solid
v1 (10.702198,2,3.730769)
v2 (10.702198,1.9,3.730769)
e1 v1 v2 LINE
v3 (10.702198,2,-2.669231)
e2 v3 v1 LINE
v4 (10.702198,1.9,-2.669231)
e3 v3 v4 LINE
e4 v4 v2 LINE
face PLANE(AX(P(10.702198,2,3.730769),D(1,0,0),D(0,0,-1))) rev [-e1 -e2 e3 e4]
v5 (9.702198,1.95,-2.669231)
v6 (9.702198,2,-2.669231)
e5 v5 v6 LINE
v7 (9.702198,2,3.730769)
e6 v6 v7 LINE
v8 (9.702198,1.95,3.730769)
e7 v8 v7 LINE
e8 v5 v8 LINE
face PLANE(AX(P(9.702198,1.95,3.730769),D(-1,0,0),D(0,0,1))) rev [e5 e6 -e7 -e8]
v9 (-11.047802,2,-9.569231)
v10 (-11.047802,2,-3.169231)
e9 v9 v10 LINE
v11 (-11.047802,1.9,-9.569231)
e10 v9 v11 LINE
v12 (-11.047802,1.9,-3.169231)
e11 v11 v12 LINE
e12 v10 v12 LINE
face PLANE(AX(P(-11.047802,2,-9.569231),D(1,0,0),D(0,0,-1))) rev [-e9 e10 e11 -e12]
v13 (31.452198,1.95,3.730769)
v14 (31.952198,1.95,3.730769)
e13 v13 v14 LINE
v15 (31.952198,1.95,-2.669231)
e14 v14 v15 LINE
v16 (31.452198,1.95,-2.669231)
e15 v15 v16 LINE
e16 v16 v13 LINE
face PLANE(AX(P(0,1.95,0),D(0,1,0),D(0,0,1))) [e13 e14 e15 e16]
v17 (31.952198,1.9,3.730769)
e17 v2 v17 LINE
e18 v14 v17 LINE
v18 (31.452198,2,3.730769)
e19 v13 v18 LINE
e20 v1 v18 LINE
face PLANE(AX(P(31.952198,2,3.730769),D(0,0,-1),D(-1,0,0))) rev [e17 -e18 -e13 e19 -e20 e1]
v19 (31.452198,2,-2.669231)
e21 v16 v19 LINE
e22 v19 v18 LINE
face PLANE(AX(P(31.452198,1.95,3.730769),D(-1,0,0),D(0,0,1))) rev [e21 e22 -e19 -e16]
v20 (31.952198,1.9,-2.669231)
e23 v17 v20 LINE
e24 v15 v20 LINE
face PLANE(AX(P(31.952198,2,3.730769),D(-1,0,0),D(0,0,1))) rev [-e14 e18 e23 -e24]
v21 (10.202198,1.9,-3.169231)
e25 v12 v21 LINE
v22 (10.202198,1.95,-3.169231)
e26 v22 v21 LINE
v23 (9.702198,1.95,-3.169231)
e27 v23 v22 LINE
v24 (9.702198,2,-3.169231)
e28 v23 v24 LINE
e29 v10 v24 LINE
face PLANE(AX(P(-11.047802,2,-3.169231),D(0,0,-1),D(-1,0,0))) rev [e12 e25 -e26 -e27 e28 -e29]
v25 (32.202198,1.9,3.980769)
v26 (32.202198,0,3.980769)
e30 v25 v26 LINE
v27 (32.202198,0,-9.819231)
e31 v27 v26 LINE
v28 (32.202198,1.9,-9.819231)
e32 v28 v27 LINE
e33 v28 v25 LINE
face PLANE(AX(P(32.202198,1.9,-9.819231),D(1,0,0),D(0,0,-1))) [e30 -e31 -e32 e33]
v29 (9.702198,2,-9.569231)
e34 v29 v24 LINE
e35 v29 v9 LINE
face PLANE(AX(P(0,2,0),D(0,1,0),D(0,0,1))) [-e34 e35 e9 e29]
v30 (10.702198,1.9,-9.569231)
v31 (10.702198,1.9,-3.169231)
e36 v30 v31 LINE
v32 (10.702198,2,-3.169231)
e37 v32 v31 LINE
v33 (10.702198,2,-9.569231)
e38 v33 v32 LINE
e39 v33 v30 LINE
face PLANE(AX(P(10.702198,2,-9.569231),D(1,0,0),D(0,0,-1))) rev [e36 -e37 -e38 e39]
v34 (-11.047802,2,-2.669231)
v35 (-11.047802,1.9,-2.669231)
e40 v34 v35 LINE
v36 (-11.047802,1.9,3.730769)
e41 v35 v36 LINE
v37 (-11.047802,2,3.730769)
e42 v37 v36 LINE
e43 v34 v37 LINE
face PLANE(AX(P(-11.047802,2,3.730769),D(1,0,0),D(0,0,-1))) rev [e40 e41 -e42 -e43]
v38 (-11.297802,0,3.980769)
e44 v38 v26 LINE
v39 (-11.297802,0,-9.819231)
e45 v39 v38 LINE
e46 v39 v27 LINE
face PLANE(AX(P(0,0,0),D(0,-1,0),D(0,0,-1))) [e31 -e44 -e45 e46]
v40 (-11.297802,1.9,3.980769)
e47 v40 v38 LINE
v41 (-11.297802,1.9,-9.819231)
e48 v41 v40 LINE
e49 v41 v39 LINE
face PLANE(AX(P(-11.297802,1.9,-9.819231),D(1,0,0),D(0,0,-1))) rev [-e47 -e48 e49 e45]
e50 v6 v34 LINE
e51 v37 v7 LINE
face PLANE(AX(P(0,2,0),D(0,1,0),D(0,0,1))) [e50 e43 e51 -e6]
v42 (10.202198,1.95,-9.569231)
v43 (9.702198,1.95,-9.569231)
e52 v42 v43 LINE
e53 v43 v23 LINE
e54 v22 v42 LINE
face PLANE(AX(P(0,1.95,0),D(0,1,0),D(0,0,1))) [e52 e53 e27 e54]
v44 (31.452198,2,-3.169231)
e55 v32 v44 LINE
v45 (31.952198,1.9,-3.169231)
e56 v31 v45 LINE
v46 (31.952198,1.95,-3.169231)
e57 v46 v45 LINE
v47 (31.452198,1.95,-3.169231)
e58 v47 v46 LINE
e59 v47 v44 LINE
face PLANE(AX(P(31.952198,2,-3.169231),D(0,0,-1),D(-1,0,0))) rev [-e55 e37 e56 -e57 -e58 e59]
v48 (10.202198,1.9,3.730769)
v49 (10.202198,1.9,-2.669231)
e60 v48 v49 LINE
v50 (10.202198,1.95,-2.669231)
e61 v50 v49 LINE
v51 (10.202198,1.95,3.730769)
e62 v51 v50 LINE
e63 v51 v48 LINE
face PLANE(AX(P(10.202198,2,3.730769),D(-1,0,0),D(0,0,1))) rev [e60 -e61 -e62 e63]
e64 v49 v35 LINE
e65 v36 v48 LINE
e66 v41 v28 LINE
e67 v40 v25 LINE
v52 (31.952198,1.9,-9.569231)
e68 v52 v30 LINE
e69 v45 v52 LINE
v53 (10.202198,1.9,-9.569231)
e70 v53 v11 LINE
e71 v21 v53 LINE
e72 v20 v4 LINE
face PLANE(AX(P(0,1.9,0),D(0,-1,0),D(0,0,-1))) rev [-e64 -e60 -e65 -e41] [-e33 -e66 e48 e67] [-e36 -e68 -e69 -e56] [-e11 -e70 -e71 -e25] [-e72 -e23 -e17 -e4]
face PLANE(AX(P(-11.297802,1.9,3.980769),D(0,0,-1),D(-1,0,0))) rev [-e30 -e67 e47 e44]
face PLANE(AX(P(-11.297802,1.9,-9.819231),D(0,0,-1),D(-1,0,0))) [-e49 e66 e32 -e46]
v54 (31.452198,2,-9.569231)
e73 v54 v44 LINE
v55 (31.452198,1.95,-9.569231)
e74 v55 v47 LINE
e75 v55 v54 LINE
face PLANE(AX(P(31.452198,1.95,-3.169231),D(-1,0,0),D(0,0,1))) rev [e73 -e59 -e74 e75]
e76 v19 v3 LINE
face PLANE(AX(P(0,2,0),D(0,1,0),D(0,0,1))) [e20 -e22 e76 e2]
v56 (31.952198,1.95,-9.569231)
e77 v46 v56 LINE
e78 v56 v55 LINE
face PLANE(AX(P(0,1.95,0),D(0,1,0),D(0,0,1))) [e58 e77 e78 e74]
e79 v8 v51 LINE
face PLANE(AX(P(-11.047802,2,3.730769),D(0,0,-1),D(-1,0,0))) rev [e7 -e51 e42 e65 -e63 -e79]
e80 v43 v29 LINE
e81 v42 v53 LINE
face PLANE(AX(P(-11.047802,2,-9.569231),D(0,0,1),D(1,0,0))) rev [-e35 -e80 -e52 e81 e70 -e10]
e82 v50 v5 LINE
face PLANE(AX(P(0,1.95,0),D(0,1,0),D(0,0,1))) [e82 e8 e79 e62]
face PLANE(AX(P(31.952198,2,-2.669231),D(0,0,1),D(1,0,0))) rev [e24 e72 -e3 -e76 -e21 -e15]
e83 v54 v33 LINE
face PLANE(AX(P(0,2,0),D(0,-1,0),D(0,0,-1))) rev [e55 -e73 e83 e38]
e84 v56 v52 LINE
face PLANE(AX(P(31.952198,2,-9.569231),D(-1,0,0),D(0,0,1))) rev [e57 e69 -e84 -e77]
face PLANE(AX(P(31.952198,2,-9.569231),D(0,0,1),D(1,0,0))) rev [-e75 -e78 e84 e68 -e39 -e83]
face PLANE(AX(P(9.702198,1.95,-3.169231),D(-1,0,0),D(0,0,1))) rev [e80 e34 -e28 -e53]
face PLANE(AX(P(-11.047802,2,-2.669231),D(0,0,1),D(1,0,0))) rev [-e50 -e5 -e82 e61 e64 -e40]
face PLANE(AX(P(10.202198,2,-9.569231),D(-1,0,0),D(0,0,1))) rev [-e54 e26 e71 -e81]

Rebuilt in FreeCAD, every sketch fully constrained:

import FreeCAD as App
import Part
import Sketcher


def add_polygon(sketch, points):
    """Adds a closed chain of lines whose ends are joined by coincident constraints."""
    first, n = sketch.GeometryCount, len(points)
    for a, b in zip(points, points[1:] + points[:1]):
        sketch.addGeometry(Part.LineSegment(App.Vector(*a, 0), App.Vector(*b, 0)), False)
    for i in range(n):
        sketch.addConstraint(Sketcher.Constraint("Coincident", first + i, 2, first + (i + 1) % n, 1))

doc = App.newDocument("Part")
body = doc.addObject("PartDesign::Body", "Body")

# Sketch on XZ plane
sketch1 = body.newObject("Sketcher::SketchObject", "Sketch")
sketch1.AttachmentSupport = (doc.getObject("XZ_Plane"), [""])
sketch1.MapMode = "FlatFace"
add_polygon(sketch1, [(-11, -10), (-11, 4), (32, 4), (32, -10)])  # lines 0-3
sketch1.addConstraint(Sketcher.Constraint("Vertical", 0))
sketch1.addConstraint(Sketcher.Constraint("Horizontal", 1))
sketch1.addConstraint(Sketcher.Constraint("Vertical", 2))
sketch1.addConstraint(Sketcher.Constraint("Horizontal", 3))
sketch1.addConstraint(Sketcher.Constraint("DistanceX", 1, 1, 1, 2, 43.5))
sketch1.addConstraint(Sketcher.Constraint("DistanceY", 0, 1, 0, 2, 13.8))
sketch1.addConstraint(Sketcher.Constraint("DistanceY", -1, 1, 0, 2, 3.980769))
sketch1.addConstraint(Sketcher.Constraint("DistanceX", 0, 2, -1, 1, 11.297802))
pad1 = body.newObject("PartDesign::Pad", "Pad")
pad1.Profile = sketch1
pad1.Length = 1.9
pad1.Reversed = True

# Sketch on XZ plane
sketch2 = body.newObject("Sketcher::SketchObject", "Sketch001")
sketch2.AttachmentSupport = (doc.getObject("XZ_Plane"), [""])
sketch2.MapMode = "FlatFace"
sketch2.AttachmentOffset = App.Placement(App.Vector(0, 0, -1.9), App.Rotation())
add_polygon(sketch2, [(-11, -3), (-11, 4), (10, 4), (10, -3)])  # lines 0-3
add_polygon(sketch2, [(-11, -10), (-11, -3), (10, -3), (10, -10)])  # lines 4-7
add_polygon(sketch2, [(11, -10), (11, -3), (32, -3), (32, -10)])  # lines 8-11
add_polygon(sketch2, [(11, -3), (11, 4), (32, 4), (32, -3)])  # lines 12-15
sketch2.addConstraint(Sketcher.Constraint("Vertical", 0))
sketch2.addConstraint(Sketcher.Constraint("Horizontal", 1))
sketch2.addConstraint(Sketcher.Constraint("Vertical", 2))
sketch2.addConstraint(Sketcher.Constraint("Horizontal", 3))
sketch2.addConstraint(Sketcher.Constraint("Vertical", 4))
sketch2.addConstraint(Sketcher.Constraint("Horizontal", 5))
sketch2.addConstraint(Sketcher.Constraint("Vertical", 6))
sketch2.addConstraint(Sketcher.Constraint("Horizontal", 7))
sketch2.addConstraint(Sketcher.Constraint("Vertical", 8))
sketch2.addConstraint(Sketcher.Constraint("Horizontal", 9))
sketch2.addConstraint(Sketcher.Constraint("Vertical", 10))
sketch2.addConstraint(Sketcher.Constraint("Horizontal", 11))
sketch2.addConstraint(Sketcher.Constraint("Vertical", 12))
sketch2.addConstraint(Sketcher.Constraint("Horizontal", 13))
sketch2.addConstraint(Sketcher.Constraint("Vertical", 14))
sketch2.addConstraint(Sketcher.Constraint("Horizontal", 15))
sketch2.addConstraint(Sketcher.Constraint("Horizontal", 5, 2, 8, 2))
sketch2.addConstraint(Sketcher.Constraint("Horizontal", 7, 2, 10, 2))
sketch2.addConstraint(Sketcher.Constraint("Horizontal", 1, 2, 12, 2))
sketch2.addConstraint(Sketcher.Constraint("Horizontal", 3, 2, 14, 2))
sketch2.addConstraint(Sketcher.Constraint("Vertical", 3, 2, 4, 2))
sketch2.addConstraint(Sketcher.Constraint("Vertical", 2, 2, 5, 2))
sketch2.addConstraint(Sketcher.Constraint("Vertical", 11, 2, 12, 2))
sketch2.addConstraint(Sketcher.Constraint("Vertical", 10, 2, 13, 2))
sketch2.addConstraint(Sketcher.Constraint("Equal", 7, 9))
sketch2.addConstraint(Sketcher.Constraint("Equal", 2, 4))
sketch2.addConstraint(Sketcher.Constraint("DistanceY", 0, 1, 0, 2, 6.4))
sketch2.addConstraint(Sketcher.Constraint("DistanceX", 1, 1, 1, 2, 21.25))
sketch2.addConstraint(Sketcher.Constraint("DistanceY", 4, 2, 3, 2, 0.5))
sketch2.addConstraint(Sketcher.Constraint("DistanceX", 5, 2, 8, 2, 0.5))
sketch2.addConstraint(Sketcher.Constraint("DistanceY", -1, 1, 0, 2, 3.730769))
sketch2.addConstraint(Sketcher.Constraint("DistanceX", 0, 2, -1, 1, 11.047802))
pad2 = body.newObject("PartDesign::Pad", "Pad001")
pad2.Profile = sketch2
pad2.Length = 0.1
pad2.Reversed = True

# Sketch on XZ plane
sketch3 = body.newObject("Sketcher::SketchObject", "Sketch002")
sketch3.AttachmentSupport = (doc.getObject("XZ_Plane"), [""])
sketch3.MapMode = "FlatFace"
sketch3.AttachmentOffset = App.Placement(App.Vector(0, 0, -2), App.Rotation())
add_polygon(sketch3, [(9.7, -2.7), (9.7, 3.7), (10.2, 3.7), (10.2, -2.7)])  # lines 0-3
add_polygon(sketch3, [(31.5, -2.7), (31.5, 3.7), (32, 3.7), (32, -2.7)])  # lines 4-7
add_polygon(sketch3, [(9.7, -9.6), (9.7, -3.2), (10.2, -3.2), (10.2, -9.6)])  # lines 8-11
add_polygon(sketch3, [(31.5, -9.6), (31.5, -3.2), (32, -3.2), (32, -9.6)])  # lines 12-15
sketch3.addConstraint(Sketcher.Constraint("Vertical", 0))
sketch3.addConstraint(Sketcher.Constraint("Horizontal", 1))
sketch3.addConstraint(Sketcher.Constraint("Vertical", 2))
sketch3.addConstraint(Sketcher.Constraint("Horizontal", 3))
sketch3.addConstraint(Sketcher.Constraint("Vertical", 4))
sketch3.addConstraint(Sketcher.Constraint("Horizontal", 5))
sketch3.addConstraint(Sketcher.Constraint("Vertical", 6))
sketch3.addConstraint(Sketcher.Constraint("Horizontal", 7))
sketch3.addConstraint(Sketcher.Constraint("Vertical", 8))
sketch3.addConstraint(Sketcher.Constraint("Horizontal", 9))
sketch3.addConstraint(Sketcher.Constraint("Vertical", 10))
sketch3.addConstraint(Sketcher.Constraint("Horizontal", 11))
sketch3.addConstraint(Sketcher.Constraint("Vertical", 12))
sketch3.addConstraint(Sketcher.Constraint("Horizontal", 13))
sketch3.addConstraint(Sketcher.Constraint("Vertical", 14))
sketch3.addConstraint(Sketcher.Constraint("Horizontal", 15))
sketch3.addConstraint(Sketcher.Constraint("Horizontal", 1, 2, 4, 2))
sketch3.addConstraint(Sketcher.Constraint("Horizontal", 3, 2, 6, 2))
sketch3.addConstraint(Sketcher.Constraint("Horizontal", 9, 2, 12, 2))
sketch3.addConstraint(Sketcher.Constraint("Horizontal", 11, 2, 14, 2))
sketch3.addConstraint(Sketcher.Constraint("Vertical", 3, 2, 8, 2))
sketch3.addConstraint(Sketcher.Constraint("Vertical", 2, 2, 9, 2))
sketch3.addConstraint(Sketcher.Constraint("Vertical", 7, 2, 12, 2))
sketch3.addConstraint(Sketcher.Constraint("Vertical", 6, 2, 13, 2))
sketch3.addConstraint(Sketcher.Constraint("Equal", 3, 5))
sketch3.addConstraint(Sketcher.Constraint("Equal", 6, 8))
sketch3.addConstraint(Sketcher.Constraint("DistanceX", 1, 1, 1, 2, 0.5))
sketch3.addConstraint(Sketcher.Constraint("DistanceY", 0, 1, 0, 2, 6.4))
sketch3.addConstraint(Sketcher.Constraint("DistanceY", 8, 2, 3, 2, 0.5))
sketch3.addConstraint(Sketcher.Constraint("DistanceX", 1, 2, 4, 2, 21.25))
sketch3.addConstraint(Sketcher.Constraint("DistanceY", -1, 1, 0, 2, 3.730769))
sketch3.addConstraint(Sketcher.Constraint("DistanceX", -1, 1, 0, 2, 9.702198))
pocket1 = body.newObject("PartDesign::Pocket", "Pocket")
pocket1.Profile = sketch3
pocket1.Length = 0.05
pocket1.Reversed = True

doc.recompute()
